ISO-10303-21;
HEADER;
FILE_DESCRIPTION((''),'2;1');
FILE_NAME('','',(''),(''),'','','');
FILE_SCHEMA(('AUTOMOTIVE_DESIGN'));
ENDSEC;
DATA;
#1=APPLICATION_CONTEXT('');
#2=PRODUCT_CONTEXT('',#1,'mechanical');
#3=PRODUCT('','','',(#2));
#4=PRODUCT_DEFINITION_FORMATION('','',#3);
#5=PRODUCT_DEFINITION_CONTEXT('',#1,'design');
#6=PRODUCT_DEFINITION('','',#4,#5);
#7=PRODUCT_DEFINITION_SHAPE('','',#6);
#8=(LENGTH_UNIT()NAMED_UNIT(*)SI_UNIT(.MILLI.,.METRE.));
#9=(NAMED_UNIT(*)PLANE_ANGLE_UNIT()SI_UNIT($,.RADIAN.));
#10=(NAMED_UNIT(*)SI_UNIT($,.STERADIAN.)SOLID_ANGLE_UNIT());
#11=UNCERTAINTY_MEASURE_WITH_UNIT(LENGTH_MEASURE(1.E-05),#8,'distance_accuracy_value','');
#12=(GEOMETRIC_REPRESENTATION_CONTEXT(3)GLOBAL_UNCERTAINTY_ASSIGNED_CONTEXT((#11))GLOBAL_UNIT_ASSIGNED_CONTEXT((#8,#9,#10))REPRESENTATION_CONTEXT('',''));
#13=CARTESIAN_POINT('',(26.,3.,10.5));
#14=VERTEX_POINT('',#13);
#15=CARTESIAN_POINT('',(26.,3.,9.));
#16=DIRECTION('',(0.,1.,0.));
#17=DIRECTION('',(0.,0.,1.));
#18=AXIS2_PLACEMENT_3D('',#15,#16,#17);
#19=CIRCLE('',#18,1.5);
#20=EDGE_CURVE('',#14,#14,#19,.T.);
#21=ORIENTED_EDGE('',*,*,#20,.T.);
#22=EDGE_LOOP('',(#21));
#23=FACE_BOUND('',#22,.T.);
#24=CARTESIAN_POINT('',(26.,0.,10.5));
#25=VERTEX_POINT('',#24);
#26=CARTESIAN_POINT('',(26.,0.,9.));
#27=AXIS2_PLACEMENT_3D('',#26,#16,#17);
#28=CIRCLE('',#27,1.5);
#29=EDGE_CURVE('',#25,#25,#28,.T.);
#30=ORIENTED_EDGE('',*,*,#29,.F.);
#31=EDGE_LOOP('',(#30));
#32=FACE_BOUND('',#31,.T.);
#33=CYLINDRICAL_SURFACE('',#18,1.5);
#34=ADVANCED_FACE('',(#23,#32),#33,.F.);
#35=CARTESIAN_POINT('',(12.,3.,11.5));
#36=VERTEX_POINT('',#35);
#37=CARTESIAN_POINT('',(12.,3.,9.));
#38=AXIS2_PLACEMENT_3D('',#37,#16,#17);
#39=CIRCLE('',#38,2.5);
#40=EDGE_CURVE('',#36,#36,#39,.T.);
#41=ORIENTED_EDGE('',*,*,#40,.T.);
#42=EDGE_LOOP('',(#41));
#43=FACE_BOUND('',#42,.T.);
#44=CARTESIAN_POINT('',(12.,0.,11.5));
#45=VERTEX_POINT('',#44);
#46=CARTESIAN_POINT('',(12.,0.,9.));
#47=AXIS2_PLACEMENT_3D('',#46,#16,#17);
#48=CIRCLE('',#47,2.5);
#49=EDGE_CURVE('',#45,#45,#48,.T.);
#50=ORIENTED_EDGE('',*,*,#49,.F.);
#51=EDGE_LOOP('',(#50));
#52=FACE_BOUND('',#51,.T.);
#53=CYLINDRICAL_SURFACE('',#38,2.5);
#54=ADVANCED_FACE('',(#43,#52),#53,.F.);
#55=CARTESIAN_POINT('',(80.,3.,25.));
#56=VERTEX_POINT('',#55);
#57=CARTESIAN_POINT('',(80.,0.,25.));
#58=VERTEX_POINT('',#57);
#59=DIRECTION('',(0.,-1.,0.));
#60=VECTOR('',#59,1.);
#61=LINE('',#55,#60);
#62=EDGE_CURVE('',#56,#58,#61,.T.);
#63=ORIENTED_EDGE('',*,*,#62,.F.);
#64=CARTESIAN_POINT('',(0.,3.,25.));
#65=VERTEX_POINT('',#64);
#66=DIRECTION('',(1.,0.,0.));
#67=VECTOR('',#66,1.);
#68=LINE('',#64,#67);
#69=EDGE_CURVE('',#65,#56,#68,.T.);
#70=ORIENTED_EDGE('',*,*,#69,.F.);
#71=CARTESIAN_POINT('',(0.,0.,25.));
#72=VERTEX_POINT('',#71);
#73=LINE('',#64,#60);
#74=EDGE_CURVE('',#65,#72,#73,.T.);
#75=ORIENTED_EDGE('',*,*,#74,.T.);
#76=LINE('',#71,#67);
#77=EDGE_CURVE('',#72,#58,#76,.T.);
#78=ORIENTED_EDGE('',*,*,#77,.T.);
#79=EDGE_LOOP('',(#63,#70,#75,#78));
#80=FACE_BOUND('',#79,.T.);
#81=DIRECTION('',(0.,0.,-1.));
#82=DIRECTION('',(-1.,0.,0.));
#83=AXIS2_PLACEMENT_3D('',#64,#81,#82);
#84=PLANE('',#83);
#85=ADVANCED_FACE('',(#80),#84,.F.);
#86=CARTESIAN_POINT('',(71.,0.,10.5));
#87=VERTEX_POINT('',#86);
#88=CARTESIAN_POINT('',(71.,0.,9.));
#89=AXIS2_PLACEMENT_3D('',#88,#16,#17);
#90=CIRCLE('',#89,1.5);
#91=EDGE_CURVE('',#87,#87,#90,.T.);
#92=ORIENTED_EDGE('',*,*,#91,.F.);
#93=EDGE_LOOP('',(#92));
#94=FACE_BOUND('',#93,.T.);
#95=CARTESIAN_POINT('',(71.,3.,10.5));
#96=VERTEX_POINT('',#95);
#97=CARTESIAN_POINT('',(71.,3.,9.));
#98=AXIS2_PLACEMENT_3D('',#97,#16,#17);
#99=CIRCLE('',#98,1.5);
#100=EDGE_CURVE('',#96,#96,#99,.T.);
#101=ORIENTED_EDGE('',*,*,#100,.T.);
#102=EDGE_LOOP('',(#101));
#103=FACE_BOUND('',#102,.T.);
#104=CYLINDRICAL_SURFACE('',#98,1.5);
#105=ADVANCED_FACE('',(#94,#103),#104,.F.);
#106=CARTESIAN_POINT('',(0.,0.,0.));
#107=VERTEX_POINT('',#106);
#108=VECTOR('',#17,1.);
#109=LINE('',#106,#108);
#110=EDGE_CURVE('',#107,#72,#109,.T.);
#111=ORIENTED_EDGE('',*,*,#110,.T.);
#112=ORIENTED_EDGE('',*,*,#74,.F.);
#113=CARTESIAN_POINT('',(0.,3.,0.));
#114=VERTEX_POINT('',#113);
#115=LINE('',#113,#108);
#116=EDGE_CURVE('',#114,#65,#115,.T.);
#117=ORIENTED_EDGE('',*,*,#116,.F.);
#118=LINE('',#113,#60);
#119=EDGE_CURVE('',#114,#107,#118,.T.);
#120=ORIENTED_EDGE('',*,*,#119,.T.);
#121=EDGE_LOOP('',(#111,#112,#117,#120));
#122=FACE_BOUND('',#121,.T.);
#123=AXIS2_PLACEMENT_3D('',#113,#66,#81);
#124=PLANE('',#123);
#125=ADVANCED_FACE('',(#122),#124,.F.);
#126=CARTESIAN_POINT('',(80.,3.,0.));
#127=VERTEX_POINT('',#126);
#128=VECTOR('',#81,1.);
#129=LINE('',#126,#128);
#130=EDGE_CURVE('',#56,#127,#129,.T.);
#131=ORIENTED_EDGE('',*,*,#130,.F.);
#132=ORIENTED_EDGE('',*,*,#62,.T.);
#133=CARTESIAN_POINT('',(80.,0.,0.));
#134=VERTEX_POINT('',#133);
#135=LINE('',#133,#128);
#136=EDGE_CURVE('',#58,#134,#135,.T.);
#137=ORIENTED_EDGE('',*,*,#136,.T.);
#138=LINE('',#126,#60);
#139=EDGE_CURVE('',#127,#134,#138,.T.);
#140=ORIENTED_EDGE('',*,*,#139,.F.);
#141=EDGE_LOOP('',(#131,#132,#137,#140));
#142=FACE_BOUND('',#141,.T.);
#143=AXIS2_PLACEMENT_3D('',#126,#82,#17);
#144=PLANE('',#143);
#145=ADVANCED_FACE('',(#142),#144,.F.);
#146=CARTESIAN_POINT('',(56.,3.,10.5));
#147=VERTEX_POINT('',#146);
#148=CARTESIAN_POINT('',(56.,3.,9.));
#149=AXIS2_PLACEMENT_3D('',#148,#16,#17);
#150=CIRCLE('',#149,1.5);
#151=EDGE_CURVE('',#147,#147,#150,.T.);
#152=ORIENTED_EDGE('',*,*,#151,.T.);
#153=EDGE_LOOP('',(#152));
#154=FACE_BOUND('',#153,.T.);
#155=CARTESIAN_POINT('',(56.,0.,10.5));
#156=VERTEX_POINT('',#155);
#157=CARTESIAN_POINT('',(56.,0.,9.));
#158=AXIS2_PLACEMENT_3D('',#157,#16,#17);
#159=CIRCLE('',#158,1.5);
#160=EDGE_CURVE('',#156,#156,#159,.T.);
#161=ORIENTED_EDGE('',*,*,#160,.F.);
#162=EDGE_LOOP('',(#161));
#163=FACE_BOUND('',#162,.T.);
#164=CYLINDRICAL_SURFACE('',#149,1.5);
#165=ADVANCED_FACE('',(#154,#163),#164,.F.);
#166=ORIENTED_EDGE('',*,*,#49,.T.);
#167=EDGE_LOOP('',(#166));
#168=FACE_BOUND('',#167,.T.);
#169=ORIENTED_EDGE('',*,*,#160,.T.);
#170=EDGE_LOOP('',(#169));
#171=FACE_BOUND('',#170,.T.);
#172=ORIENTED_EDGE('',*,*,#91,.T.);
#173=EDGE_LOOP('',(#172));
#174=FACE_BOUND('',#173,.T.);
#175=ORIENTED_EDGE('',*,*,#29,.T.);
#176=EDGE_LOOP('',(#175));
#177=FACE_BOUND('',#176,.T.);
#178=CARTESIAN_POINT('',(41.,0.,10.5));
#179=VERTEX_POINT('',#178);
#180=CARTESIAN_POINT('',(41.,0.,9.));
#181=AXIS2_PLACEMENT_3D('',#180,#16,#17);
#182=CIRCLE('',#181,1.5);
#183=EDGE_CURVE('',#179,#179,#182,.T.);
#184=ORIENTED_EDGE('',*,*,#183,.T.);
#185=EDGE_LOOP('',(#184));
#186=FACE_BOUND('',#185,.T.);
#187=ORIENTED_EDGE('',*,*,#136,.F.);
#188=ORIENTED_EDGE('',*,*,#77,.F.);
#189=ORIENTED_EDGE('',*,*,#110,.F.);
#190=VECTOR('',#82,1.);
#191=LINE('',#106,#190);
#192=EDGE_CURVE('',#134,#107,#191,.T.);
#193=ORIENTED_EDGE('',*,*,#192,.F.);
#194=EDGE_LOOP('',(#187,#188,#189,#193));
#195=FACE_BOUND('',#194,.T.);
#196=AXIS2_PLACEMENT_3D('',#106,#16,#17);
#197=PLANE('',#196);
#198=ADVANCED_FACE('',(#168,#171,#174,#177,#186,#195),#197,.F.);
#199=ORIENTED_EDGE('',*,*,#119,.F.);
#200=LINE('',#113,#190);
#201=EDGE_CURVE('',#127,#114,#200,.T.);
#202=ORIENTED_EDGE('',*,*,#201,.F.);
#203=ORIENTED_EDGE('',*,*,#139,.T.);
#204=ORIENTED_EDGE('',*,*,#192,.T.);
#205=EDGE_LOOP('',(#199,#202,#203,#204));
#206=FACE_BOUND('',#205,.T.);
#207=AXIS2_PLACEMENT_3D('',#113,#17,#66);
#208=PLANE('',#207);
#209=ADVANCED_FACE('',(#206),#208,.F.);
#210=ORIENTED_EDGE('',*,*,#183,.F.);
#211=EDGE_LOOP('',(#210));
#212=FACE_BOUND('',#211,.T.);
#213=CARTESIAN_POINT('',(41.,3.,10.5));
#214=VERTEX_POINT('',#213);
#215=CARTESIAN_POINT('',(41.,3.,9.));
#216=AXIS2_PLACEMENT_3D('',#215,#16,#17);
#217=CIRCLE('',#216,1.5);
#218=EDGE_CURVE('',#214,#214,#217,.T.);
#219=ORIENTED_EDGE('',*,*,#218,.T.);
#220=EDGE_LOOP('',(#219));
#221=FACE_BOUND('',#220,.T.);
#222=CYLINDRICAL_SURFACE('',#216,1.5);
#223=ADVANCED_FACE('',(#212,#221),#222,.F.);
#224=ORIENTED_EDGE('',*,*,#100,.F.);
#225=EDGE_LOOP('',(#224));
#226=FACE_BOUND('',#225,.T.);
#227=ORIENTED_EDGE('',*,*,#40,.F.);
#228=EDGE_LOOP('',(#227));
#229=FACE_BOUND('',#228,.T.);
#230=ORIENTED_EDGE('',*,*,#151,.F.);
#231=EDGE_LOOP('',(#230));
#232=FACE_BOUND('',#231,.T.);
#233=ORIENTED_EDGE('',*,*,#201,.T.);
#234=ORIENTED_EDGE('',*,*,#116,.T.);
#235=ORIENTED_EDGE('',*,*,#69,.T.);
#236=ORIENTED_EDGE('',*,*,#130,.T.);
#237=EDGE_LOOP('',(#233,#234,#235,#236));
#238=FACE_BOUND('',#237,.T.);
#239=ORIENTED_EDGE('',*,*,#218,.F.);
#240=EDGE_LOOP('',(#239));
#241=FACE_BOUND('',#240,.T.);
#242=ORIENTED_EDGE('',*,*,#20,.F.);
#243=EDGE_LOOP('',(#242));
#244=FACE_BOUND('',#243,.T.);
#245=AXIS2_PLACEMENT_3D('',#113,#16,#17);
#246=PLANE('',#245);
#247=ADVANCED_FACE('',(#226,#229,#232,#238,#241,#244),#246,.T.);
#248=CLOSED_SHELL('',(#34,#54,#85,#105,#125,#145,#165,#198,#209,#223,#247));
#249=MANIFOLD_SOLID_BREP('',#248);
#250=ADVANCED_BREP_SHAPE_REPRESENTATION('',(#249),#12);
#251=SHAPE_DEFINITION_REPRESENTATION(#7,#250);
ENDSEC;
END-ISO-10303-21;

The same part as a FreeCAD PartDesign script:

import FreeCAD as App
import Part
import Sketcher
from FreeCAD import Vector
Q = App.Units.Quantity

doc = App.newDocument("Part")
params = doc.addObject("Spreadsheet::Sheet", "Params")
for row, (alias, value) in enumerate([
    ("sketch1_width", "80 mm"),
    ("sketch1_height", "25 mm"),
    ("pad1_length", "3 mm"),
    ("sketch2_diameter", "3 mm"),
    ("hole_diameter", "3 mm"),
    ("sketch3_diameter", "5 mm"),
    ("hole2_diameter", "5 mm"),
], start=1):
    params.set(f"A{row}", alias)
    params.set(f"B{row}", "=" + value)
    params.setAlias(f"B{row}", alias)

body = doc.addObject("PartDesign::Body", "Body")

sketch1 = body.newObject("Sketcher::SketchObject", "Sketch")
sketch1.AttachmentSupport = (doc.getObject("XZ_Plane"), [""])
sketch1.MapMode = "FlatFace"
sketch1.addGeometry([
    Part.LineSegment(Vector(0, 0, 0), Vector(0, 25, 0)),
    Part.LineSegment(Vector(0, 25, 0), Vector(80, 25, 0)),
    Part.LineSegment(Vector(80, 25, 0), Vector(80, 0, 0)),
    Part.LineSegment(Vector(80, 0, 0), Vector(0, 0, 0)),
], False)
sketch1.addConstraint([
    Sketcher.Constraint("Coincident", 0, 2, 1, 1),
    Sketcher.Constraint("Coincident", 1, 2, 2, 1),
    Sketcher.Constraint("Coincident", 2, 2, 3, 1),
    Sketcher.Constraint("Coincident", 3, 2, 0, 1),
    Sketcher.Constraint("Vertical", 0),
    Sketcher.Constraint("Horizontal", 1),
    Sketcher.Constraint("Vertical", 2),
    Sketcher.Constraint("Horizontal", 3),
    Sketcher.Constraint("Coincident", 3, 2, -1, 1),
    Sketcher.Constraint("DistanceX", 1, 1, 1, 2, Q("80 mm")),
    Sketcher.Constraint("DistanceY", 0, 1, 0, 2, Q("25 mm")),
])
sketch1.setExpression("Constraints[9]", "Params.sketch1_width")
sketch1.setExpression("Constraints[10]", "Params.sketch1_height")
pad1 = body.newObject("PartDesign::Pad", "Pad")
pad1.Profile = sketch1
pad1.setExpression("Length", "Params.pad1_length")
pad1.Reversed = True

sketch2 = body.newObject("Sketcher::SketchObject", "Sketch001")
sketch2.AttachmentSupport = (doc.getObject("XZ_Plane"), [""])
sketch2.MapMode = "FlatFace"
sketch2.AttachmentOffset = App.Placement(Vector(0, 0, -3), App.Rotation())
sketch2.addGeometry([
    Part.Circle(Vector(71, 9, 0), Vector(0, 0, 1), 1.5),
    Part.Circle(Vector(56, 9, 0), Vector(0, 0, 1), 1.5),
    Part.Circle(Vector(41, 9, 0), Vector(0, 0, 1), 1.5),
    Part.Circle(Vector(26, 9, 0), Vector(0, 0, 1), 1.5),
], False)
sketch2.addConstraint([
    Sketcher.Constraint("Equal", 0, 1),
    Sketcher.Constraint("Equal", 1, 2),
    Sketcher.Constraint("Equal", 2, 3),
    Sketcher.Constraint("Horizontal", 0, 3, 1, 3),
    Sketcher.Constraint("Horizontal", 1, 3, 2, 3),
    Sketcher.Constraint("Horizontal", 2, 3, 3, 3),
    Sketcher.Constraint("Diameter", 0, Q("3 mm")),
    Sketcher.Constraint("DistanceX", -1, 1, 0, 3, Q("71 mm")),
    Sketcher.Constraint("DistanceY", -1, 1, 0, 3, Q("9 mm")),
    Sketcher.Constraint("DistanceX", -1, 1, 1, 3, Q("56 mm")),
    Sketcher.Constraint("DistanceX", -1, 1, 2, 3, Q("41 mm")),
    Sketcher.Constraint("DistanceX", -1, 1, 3, 3, Q("26 mm")),
])
sketch2.setExpression("Constraints[6]", "Params.sketch2_diameter")
doc.recompute()
hole = body.newObject("PartDesign::Hole", "Hole")
hole.Profile = sketch2
hole.ThreadType = "None"
hole.setExpression("Diameter", "Params.hole_diameter")
hole.DepthType = "ThroughAll"
hole.Reversed = True

sketch3 = body.newObject("Sketcher::SketchObject", "Sketch002")
sketch3.AttachmentSupport = (doc.getObject("XZ_Plane"), [""])
sketch3.MapMode = "FlatFace"
sketch3.AttachmentOffset = App.Placement(Vector(0, 0, -3), App.Rotation())
sketch3.addGeometry(Part.Circle(Vector(12, 9, 0), Vector(0, 0, 1), 2.5), False)
sketch3.addConstraint([
    Sketcher.Constraint("Diameter", 0, Q("5 mm")),
    Sketcher.Constraint("DistanceX", -1, 1, 0, 3, Q("12 mm")),
    Sketcher.Constraint("DistanceY", -1, 1, 0, 3, Q("9 mm")),
])
sketch3.setExpression("Constraints[0]", "Params.sketch3_diameter")
doc.recompute()
hole2 = body.newObject("PartDesign::Hole", "Hole001")
hole2.Profile = sketch3
hole2.ThreadType = "None"
hole2.setExpression("Diameter", "Params.hole2_diameter")
hole2.DepthType = "ThroughAll"
hole2.Reversed = True

doc.recompute()
